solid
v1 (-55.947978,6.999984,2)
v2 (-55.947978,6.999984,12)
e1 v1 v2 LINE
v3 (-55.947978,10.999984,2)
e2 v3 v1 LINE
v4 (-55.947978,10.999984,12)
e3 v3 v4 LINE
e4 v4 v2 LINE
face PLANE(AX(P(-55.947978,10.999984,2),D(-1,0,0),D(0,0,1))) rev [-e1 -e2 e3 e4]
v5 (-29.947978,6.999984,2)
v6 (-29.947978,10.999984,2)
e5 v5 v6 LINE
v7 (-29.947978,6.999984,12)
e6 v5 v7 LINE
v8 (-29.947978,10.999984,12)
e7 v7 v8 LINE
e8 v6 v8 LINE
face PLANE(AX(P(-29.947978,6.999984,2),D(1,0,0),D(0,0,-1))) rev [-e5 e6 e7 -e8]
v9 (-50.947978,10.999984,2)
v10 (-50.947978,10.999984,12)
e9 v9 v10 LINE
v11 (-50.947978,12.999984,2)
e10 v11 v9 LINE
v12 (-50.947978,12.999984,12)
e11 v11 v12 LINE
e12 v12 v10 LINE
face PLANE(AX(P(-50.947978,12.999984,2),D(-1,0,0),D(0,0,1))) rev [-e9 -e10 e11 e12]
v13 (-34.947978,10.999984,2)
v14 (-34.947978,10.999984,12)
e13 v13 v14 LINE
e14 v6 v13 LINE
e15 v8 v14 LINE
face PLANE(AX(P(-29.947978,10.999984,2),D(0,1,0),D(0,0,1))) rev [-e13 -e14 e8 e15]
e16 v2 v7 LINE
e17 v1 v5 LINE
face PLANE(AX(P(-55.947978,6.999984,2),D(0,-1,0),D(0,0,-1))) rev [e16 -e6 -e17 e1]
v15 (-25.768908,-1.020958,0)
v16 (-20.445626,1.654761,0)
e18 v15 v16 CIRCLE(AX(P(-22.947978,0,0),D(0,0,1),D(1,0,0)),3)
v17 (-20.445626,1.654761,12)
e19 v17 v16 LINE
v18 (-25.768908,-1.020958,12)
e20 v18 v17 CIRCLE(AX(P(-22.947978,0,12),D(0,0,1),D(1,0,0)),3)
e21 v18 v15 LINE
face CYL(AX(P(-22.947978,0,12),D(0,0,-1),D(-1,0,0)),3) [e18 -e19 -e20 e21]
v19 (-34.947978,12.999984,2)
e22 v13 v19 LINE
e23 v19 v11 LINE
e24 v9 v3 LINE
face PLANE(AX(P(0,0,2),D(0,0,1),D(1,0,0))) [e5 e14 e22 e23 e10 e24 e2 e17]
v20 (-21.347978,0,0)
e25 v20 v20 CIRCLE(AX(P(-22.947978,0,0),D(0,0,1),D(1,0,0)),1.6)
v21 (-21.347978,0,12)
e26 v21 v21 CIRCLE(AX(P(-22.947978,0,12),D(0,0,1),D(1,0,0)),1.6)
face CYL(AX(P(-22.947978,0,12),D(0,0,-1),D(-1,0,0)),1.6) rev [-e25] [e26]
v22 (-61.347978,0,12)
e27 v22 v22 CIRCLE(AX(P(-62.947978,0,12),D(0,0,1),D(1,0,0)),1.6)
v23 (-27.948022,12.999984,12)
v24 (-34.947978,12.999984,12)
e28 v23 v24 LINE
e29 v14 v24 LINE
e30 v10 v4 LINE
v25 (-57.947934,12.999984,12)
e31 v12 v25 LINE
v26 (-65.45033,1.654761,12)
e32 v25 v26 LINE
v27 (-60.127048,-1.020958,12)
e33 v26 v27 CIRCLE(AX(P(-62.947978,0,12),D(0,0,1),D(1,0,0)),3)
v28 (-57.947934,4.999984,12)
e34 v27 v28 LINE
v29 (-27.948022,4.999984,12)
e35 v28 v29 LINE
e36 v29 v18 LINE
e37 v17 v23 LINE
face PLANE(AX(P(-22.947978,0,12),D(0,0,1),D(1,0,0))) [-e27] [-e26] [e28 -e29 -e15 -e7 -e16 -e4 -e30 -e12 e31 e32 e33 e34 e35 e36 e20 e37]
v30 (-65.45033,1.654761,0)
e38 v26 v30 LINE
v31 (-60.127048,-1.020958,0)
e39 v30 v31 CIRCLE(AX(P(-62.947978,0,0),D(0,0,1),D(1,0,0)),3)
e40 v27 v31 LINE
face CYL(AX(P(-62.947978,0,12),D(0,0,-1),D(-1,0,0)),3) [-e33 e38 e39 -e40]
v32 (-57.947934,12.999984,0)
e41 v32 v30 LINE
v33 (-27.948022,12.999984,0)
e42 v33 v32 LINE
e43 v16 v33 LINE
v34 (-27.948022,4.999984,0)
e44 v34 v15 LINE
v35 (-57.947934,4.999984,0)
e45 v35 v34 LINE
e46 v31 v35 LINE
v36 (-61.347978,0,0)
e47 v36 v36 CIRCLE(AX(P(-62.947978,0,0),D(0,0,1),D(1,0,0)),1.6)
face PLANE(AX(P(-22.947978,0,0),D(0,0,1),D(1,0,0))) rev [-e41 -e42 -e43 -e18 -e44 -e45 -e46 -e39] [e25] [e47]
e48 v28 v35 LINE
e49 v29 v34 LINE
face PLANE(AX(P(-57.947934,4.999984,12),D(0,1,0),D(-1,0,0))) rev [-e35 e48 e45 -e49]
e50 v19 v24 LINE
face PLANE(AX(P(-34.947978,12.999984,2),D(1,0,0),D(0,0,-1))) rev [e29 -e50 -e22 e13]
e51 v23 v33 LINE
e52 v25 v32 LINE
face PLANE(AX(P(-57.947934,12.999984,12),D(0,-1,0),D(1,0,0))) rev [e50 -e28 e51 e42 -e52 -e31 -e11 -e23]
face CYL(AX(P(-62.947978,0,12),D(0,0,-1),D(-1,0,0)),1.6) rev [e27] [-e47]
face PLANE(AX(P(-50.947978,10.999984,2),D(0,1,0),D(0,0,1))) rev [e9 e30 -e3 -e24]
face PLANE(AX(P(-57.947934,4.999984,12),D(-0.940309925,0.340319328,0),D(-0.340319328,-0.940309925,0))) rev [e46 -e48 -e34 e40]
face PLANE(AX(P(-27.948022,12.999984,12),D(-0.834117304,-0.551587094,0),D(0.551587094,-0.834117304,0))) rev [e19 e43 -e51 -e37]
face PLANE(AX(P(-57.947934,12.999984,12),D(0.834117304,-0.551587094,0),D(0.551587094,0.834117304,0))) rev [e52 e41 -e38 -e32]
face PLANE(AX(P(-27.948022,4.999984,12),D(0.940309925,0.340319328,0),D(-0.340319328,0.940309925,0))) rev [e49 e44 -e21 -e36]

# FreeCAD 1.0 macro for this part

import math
import FreeCAD as App
import Part
import Sketcher
from FreeCAD import Vector
Q = App.Units.Quantity

doc = App.newDocument("Part")
body = doc.addObject("PartDesign::Body", "Body")

# Sketch on XY plane
sketch1 = doc.addObject("Sketcher::SketchObject", "Sketch")
body.addObject(sketch1)
sketch1.AttachmentSupport = (doc.XY_Plane, [""])
sketch1.MapMode = "FlatFace"
sketch1.addGeometry(Part.LineSegment(Vector(-57.947934, 4.999984, 0), Vector(-27.948022, 4.999984, 0)), False)
sketch1.addGeometry(Part.LineSegment(Vector(-27.948022, 4.999984, 0), Vector(-25.768908, -1.020958, 0)), False)
sketch1.addGeometry(Part.ArcOfCircle(Part.Circle(Vector(-22.947978, 0, 0), Vector(0, 0, 1), 3), math.radians(-160.10367), math.radians(33.475963)), False)
sketch1.addGeometry(Part.LineSegment(Vector(-20.445626, 1.654761, 0), Vector(-27.948022, 12.999984, 0)), False)
sketch1.addGeometry(Part.LineSegment(Vector(-27.948022, 12.999984, 0), Vector(-57.947934, 12.999984, 0)), False)
sketch1.addGeometry(Part.LineSegment(Vector(-57.947934, 12.999984, 0), Vector(-65.45033, 1.654761, 0)), False)
sketch1.addGeometry(Part.ArcOfCircle(Part.Circle(Vector(-62.947978, 0, 0), Vector(0, 0, 1), 3), math.radians(146.524037), math.radians(340.10367)), False)
sketch1.addGeometry(Part.LineSegment(Vector(-60.127048, -1.020958, 0), Vector(-57.947934, 4.999984, 0)), False)
sketch1.addGeometry(Part.Circle(Vector(-62.947978, 0, 0), Vector(0, 0, 1), 1.6), False)
sketch1.addGeometry(Part.Circle(Vector(-22.947978, 0, 0), Vector(0, 0, 1), 1.6), False)
sketch1.addConstraint(Sketcher.Constraint("Coincident", 0, 2, 1, 1))
sketch1.addConstraint(Sketcher.Constraint("Tangent", 1, 2, 2, 1))
sketch1.addConstraint(Sketcher.Constraint("Tangent", 2, 2, 3, 1))
sketch1.addConstraint(Sketcher.Constraint("Coincident", 3, 2, 4, 1))
sketch1.addConstraint(Sketcher.Constraint("Coincident", 4, 2, 5, 1))
sketch1.addConstraint(Sketcher.Constraint("Tangent", 5, 2, 6, 1))
sketch1.addConstraint(Sketcher.Constraint("Tangent", 6, 2, 7, 1))
sketch1.addConstraint(Sketcher.Constraint("Coincident", 7, 2, 0, 1))
sketch1.addConstraint(Sketcher.Constraint("Horizontal", 0))
sketch1.addConstraint(Sketcher.Constraint("Horizontal", 4))
sketch1.addConstraint(Sketcher.Constraint("Coincident", 8, 3, 6, 3))
sketch1.addConstraint(Sketcher.Constraint("Coincident", 9, 3, 2, 3))
sketch1.addConstraint(Sketcher.Constraint("Equal", 2, 6))
sketch1.addConstraint(Sketcher.Constraint("Equal", 8, 9))
sketch1.addConstraint(Sketcher.Constraint("PointOnObject", 2, 3, -1))
sketch1.addConstraint(Sketcher.Constraint("PointOnObject", 6, 3, -1))
sketch1.addConstraint(Sketcher.Constraint("Horizontal", 2, 2, 5, 2))
sketch1.addConstraint(Sketcher.Constraint("Horizontal", 1, 2, 6, 2))
sketch1.addConstraint(Sketcher.Constraint("Vertical", 0, 2, 3, 2))
sketch1.addConstraint(Sketcher.Constraint("Radius", 2, Q("3 mm")))
sketch1.addConstraint(Sketcher.Constraint("Diameter", 8, Q("3.2 mm")))
sketch1.addConstraint(Sketcher.Constraint("DistanceX", 6, 3, 2, 3, Q("40 mm")))
sketch1.addConstraint(Sketcher.Constraint("DistanceY", 0, 2, 3, 2, Q("8 mm")))
sketch1.addConstraint(Sketcher.Constraint("DistanceX", 0, 1, 0, 2, Q("29.999912 mm")))
sketch1.addConstraint(Sketcher.Constraint("Distance", 3, Q("13.601471 mm")))
sketch1.addConstraint(Sketcher.Constraint("DistanceX", 2, 3, -1, 1, Q("22.947978 mm")))
pad1 = doc.addObject("PartDesign::Pad", "Pad")
body.addObject(pad1)
pad1.Profile = sketch1
pad1.Length = 12

# Sketch on XY plane
sketch2 = doc.addObject("Sketcher::SketchObject", "Sketch001")
body.addObject(sketch2)
sketch2.AttachmentSupport = (doc.XY_Plane, [""])
sketch2.MapMode = "FlatFace"
sketch2.AttachmentOffset = App.Placement(Vector(0, 0, 12), App.Rotation())
sketch2.addGeometry(Part.LineSegment(Vector(-34.947978, 12.999984, 0), Vector(-50.947978, 12.999984, 0)), False)
sketch2.addGeometry(Part.LineSegment(Vector(-50.947978, 12.999984, 0), Vector(-50.947978, 10.999984, 0)), False)
sketch2.addGeometry(Part.LineSegment(Vector(-50.947978, 10.999984, 0), Vector(-55.947978, 10.999984, 0)), False)
sketch2.addGeometry(Part.LineSegment(Vector(-55.947978, 10.999984, 0), Vector(-55.947978, 6.999984, 0)), False)
sketch2.addGeometry(Part.LineSegment(Vector(-55.947978, 6.999984, 0), Vector(-29.947978, 6.999984, 0)), False)
sketch2.addGeometry(Part.LineSegment(Vector(-29.947978, 6.999984, 0), Vector(-29.947978, 10.999984, 0)), False)
sketch2.addGeometry(Part.LineSegment(Vector(-29.947978, 10.999984, 0), Vector(-34.947978, 10.999984, 0)), False)
sketch2.addGeometry(Part.LineSegment(Vector(-34.947978, 10.999984, 0), Vector(-34.947978, 12.999984, 0)), False)
sketch2.addConstraint(Sketcher.Constraint("Coincident", 0, 2, 1, 1))
sketch2.addConstraint(Sketcher.Constraint("Coincident", 1, 2, 2, 1))
sketch2.addConstraint(Sketcher.Constraint("Coincident", 2, 2, 3, 1))
sketch2.addConstraint(Sketcher.Constraint("Coincident", 3, 2, 4, 1))
sketch2.addConstraint(Sketcher.Constraint("Coincident", 4, 2, 5, 1))
sketch2.addConstraint(Sketcher.Constraint("Coincident", 5, 2, 6, 1))
sketch2.addConstraint(Sketcher.Constraint("Coincident", 6, 2, 7, 1))
sketch2.addConstraint(Sketcher.Constraint("Coincident", 7, 2, 0, 1))
sketch2.addConstraint(Sketcher.Constraint("Horizontal", 0))
sketch2.addConstraint(Sketcher.Constraint("Vertical", 1))
sketch2.addConstraint(Sketcher.Constraint("Horizontal", 2))
sketch2.addConstraint(Sketcher.Constraint("Vertical", 3))
sketch2.addConstraint(Sketcher.Constraint("Horizontal", 4))
sketch2.addConstraint(Sketcher.Constraint("Vertical", 5))
sketch2.addConstraint(Sketcher.Constraint("Horizontal", 6))
sketch2.addConstraint(Sketcher.Constraint("Vertical", 7))
sketch2.addConstraint(Sketcher.Constraint("Horizontal", 2, 2, 5, 2))
sketch2.addConstraint(Sketcher.Constraint("Equal", 2, 6))
sketch2.addConstraint(Sketcher.Constraint("DistanceX", 0, 2, 0, 1, Q("16 mm")))
sketch2.addConstraint(Sketcher.Constraint("DistanceX", 2, 2, 2, 1, Q("5 mm")))
sketch2.addConstraint(Sketcher.Constraint("DistanceY", 1, 2, 1, 1, Q("2 mm")))
sketch2.addConstraint(Sketcher.Constraint("DistanceY", 3, 2, 3, 1, Q("4 mm")))
sketch2.addConstraint(Sketcher.Constraint("DistanceX", 0, 2, -1, 1, Q("50.947978 mm")))
sketch2.addConstraint(Sketcher.Constraint("DistanceY", -1, 1, 0, 2, Q("12.999984 mm")))
pocket1 = doc.addObject("PartDesign::Pocket", "Pocket")
body.addObject(pocket1)
pocket1.Profile = sketch2
pocket1.Length = 10

doc.recompute()
